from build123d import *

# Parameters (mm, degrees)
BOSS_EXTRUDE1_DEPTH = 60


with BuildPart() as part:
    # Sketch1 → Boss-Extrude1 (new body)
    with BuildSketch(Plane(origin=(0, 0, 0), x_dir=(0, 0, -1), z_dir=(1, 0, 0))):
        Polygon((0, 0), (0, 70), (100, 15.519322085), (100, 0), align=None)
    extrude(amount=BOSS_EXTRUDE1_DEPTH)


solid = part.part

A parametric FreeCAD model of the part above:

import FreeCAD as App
import Part
import Sketcher
from FreeCAD import Vector
Q = App.Units.Quantity


def add_polygon(sketch, points):
    """Adds a closed chain of lines whose ends are joined by coincident constraints."""
    first, n = sketch.GeometryCount, len(points)
    for a, b in zip(points, points[1:] + points[:1]):
        sketch.addGeometry(Part.LineSegment(App.Vector(*a, 0), App.Vector(*b, 0)), False)
    for i in range(n):
        sketch.addConstraint(Sketcher.Constraint("Coincident", first + i, 2, first + (i + 1) % n, 1))

doc = App.newDocument("Part")
body = doc.addObject("PartDesign::Body", "Body")

# Sketch on YZ plane
sketch1 = doc.addObject("Sketcher::SketchObject", "Sketch")
body.addObject(sketch1)
sketch1.AttachmentSupport = (doc.YZ_Plane, [""])
sketch1.MapMode = "FlatFace"
add_polygon(sketch1, [(70, 0), (0, 0), (0, -100), (15.519322, -100)])  # lines 0-3
sketch1.addConstraint([
    Sketcher.Constraint("Horizontal", 0),
    Sketcher.Constraint("Vertical", 1),
    Sketcher.Constraint("Horizontal", 2),
    Sketcher.Constraint("Coincident", 0, 2, -1, 1),
    Sketcher.Constraint("DistanceX", 0, 2, 0, 1, Q("70 mm")),
    Sketcher.Constraint("DistanceY", 1, 2, 1, 1, Q("100 mm")),
    Sketcher.Constraint("Distance", 3, Q("113.87776 mm")),
])
pad1 = doc.addObject("PartDesign::Pad", "Pad")
body.addObject(pad1)
pad1.Profile = sketch1
pad1.Length = 60

doc.recompute()
